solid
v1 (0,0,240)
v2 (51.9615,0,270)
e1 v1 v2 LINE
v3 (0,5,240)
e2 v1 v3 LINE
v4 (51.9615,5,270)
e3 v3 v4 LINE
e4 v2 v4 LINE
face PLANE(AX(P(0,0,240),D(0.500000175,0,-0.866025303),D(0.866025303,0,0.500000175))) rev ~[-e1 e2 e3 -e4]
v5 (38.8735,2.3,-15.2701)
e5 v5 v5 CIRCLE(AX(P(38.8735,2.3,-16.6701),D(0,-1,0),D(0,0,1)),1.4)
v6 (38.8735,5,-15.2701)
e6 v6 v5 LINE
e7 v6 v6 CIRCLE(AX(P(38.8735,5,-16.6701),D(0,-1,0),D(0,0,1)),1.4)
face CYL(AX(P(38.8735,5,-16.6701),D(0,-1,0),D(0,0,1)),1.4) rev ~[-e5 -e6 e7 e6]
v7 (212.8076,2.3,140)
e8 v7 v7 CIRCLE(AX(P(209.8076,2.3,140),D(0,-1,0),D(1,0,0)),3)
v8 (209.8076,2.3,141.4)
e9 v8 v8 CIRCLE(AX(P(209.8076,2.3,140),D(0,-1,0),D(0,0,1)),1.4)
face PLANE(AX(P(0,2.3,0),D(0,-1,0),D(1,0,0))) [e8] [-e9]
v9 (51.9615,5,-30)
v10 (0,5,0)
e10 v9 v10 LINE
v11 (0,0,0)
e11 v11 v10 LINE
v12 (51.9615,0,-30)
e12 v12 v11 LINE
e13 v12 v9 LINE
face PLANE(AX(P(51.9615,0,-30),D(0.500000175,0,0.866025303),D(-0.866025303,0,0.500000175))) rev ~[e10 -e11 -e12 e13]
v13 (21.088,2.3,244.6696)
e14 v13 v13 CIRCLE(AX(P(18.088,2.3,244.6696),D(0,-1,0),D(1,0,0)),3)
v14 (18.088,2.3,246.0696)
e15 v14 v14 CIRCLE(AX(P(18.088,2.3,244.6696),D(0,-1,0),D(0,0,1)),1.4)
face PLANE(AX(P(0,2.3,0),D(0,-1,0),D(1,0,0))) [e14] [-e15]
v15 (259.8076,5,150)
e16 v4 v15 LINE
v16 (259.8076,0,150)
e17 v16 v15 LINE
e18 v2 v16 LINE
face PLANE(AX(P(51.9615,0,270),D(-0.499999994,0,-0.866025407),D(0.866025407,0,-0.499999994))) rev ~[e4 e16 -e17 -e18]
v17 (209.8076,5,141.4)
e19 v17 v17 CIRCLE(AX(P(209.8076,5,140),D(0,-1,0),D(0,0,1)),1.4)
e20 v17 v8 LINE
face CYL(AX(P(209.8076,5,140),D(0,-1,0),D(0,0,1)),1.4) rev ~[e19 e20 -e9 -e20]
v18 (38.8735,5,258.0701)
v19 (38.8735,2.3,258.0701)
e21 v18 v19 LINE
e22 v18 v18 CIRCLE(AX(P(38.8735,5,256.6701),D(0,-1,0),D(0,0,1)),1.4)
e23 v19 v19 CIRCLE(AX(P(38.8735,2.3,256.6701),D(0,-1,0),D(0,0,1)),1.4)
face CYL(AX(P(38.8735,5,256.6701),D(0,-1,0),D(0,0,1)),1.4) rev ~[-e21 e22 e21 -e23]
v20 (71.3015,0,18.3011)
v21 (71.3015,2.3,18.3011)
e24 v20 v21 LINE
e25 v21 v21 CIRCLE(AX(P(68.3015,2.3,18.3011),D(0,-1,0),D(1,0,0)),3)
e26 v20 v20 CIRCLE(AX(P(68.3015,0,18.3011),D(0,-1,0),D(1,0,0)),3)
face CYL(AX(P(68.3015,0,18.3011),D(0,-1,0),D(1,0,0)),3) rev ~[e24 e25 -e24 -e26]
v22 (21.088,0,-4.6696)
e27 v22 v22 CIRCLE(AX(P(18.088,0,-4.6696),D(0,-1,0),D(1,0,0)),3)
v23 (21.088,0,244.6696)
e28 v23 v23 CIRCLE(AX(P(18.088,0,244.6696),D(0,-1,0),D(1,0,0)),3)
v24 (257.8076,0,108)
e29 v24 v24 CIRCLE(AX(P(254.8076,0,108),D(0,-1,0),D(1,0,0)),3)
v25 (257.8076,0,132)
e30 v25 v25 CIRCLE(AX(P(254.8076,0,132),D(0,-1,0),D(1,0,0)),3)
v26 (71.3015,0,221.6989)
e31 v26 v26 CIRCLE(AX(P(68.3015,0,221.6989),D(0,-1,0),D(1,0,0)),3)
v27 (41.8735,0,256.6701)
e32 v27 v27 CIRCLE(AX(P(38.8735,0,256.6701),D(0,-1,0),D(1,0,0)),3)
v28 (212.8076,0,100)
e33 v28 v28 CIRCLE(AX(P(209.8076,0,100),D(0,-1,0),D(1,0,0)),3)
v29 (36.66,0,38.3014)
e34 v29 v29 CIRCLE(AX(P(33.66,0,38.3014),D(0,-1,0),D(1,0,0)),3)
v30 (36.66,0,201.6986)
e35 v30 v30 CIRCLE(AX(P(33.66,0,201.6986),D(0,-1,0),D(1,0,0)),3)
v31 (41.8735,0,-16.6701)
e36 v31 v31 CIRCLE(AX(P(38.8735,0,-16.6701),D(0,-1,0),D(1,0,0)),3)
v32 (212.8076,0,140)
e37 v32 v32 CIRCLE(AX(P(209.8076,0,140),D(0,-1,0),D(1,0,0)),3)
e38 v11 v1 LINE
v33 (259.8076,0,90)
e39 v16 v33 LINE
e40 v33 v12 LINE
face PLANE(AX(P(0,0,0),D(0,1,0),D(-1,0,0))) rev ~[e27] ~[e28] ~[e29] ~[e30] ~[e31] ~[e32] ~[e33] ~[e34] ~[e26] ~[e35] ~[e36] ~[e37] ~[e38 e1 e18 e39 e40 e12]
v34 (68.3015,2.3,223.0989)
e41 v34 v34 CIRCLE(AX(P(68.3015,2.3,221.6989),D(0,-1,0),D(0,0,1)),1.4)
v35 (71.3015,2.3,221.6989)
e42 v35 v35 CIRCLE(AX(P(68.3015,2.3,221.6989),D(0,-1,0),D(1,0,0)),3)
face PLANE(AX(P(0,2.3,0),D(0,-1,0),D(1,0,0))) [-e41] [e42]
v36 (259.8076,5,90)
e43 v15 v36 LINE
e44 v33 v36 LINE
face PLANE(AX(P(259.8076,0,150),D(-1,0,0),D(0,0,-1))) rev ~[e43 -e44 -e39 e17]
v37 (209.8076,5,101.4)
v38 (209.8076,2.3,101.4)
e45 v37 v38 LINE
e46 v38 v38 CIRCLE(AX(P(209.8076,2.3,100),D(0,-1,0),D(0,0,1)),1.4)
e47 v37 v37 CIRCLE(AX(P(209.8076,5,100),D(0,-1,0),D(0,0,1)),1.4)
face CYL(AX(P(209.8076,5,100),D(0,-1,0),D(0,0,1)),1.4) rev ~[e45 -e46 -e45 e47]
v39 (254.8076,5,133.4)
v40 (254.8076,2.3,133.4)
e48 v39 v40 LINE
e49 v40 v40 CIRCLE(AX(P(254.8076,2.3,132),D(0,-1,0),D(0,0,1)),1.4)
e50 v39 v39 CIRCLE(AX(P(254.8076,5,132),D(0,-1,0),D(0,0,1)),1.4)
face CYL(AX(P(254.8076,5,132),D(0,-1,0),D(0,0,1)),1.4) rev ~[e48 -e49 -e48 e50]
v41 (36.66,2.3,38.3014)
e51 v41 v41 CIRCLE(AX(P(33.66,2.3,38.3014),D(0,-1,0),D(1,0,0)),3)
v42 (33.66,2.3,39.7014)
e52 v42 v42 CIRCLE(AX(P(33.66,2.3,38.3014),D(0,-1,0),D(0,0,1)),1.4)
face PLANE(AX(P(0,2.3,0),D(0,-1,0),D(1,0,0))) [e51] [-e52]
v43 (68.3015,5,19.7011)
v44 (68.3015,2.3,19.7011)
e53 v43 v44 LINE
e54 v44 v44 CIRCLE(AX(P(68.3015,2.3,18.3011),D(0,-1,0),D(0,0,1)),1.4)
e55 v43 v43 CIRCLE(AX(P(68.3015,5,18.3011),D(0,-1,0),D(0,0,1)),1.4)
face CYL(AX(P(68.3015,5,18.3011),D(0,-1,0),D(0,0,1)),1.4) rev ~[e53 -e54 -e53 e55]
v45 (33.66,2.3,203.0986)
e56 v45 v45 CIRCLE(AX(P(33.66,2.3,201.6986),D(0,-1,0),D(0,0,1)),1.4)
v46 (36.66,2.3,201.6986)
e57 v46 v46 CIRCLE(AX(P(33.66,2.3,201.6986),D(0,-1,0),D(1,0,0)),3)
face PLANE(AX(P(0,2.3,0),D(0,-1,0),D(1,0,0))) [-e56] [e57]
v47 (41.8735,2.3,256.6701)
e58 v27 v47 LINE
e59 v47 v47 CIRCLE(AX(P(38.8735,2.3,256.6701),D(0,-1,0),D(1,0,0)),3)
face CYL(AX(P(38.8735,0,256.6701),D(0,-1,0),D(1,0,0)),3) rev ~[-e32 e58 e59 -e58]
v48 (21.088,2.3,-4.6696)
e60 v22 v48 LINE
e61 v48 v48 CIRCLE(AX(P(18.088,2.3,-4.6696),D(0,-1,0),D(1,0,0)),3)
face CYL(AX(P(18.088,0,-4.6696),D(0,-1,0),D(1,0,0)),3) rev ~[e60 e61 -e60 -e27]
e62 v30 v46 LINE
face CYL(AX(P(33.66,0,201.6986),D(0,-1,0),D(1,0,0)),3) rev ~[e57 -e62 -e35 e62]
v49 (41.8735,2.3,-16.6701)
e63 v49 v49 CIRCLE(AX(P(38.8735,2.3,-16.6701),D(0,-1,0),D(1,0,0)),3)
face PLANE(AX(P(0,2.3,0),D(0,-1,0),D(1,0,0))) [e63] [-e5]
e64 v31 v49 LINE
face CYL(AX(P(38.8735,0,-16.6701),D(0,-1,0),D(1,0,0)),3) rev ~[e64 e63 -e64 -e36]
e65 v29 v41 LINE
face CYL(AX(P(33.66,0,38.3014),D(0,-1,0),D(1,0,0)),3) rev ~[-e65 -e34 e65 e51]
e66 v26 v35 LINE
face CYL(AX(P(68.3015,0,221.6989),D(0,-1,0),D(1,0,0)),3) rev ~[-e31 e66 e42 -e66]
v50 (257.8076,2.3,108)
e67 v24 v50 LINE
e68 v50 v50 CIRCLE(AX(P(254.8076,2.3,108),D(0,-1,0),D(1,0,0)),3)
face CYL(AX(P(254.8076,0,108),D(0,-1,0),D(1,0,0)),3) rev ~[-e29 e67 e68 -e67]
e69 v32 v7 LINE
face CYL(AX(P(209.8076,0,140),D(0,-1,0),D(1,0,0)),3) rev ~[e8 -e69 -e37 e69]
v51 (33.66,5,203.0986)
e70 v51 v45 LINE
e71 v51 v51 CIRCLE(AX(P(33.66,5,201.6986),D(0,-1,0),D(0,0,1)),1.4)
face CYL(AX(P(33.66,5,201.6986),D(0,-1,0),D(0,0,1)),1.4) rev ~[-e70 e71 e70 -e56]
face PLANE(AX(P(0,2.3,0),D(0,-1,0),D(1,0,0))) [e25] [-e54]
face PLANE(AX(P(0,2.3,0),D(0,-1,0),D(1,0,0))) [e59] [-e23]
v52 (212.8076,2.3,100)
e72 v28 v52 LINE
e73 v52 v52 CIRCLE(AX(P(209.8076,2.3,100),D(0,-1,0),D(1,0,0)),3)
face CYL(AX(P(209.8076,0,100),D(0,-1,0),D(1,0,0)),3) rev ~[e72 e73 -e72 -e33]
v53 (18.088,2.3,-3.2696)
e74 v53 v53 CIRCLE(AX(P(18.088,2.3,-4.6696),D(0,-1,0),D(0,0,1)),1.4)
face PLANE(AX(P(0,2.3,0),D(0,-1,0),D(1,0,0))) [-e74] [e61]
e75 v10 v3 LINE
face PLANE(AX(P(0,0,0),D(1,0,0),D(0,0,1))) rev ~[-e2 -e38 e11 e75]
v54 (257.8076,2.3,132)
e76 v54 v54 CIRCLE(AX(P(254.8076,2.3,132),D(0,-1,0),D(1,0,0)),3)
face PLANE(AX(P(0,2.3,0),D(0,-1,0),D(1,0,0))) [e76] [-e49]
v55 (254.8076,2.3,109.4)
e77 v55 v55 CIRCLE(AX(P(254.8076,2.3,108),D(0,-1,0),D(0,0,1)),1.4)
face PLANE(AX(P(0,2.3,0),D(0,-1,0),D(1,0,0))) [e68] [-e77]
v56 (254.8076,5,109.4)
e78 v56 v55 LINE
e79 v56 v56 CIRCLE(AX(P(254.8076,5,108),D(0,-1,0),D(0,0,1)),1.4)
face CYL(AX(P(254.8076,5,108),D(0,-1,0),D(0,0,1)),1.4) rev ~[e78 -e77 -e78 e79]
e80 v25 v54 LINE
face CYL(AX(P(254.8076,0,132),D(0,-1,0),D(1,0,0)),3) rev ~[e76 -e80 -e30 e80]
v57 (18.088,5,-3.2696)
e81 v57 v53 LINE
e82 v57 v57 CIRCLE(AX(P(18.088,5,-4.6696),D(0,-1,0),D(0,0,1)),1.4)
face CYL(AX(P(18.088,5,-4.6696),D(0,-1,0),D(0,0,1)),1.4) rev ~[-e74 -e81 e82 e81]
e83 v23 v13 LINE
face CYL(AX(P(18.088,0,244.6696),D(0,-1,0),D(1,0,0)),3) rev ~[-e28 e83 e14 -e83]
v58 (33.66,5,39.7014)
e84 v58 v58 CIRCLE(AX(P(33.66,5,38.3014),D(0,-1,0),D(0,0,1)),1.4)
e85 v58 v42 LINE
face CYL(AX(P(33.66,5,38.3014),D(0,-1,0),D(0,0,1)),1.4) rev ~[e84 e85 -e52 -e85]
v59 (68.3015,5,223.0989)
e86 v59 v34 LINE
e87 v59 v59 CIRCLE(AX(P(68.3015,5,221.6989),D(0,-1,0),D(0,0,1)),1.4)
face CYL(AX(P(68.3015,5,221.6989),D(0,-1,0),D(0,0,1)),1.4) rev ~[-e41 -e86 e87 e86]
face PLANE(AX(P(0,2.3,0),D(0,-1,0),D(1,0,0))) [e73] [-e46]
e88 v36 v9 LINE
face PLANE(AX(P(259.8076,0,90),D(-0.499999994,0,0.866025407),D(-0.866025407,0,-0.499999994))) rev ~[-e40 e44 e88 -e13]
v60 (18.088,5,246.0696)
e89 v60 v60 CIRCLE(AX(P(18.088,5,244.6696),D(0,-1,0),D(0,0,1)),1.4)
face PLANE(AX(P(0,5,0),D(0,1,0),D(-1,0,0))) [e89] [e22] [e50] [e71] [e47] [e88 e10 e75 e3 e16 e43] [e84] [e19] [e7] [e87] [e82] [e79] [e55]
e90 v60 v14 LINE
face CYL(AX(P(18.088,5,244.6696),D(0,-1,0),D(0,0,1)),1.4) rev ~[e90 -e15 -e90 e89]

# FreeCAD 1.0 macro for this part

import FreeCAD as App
import Part
import Sketcher

V = App.Vector
Q = App.Units.Quantity


def add_polygon(sketch, points):
    """Adds a closed chain of lines whose ends are joined by coincident constraints."""
    first, n = sketch.GeometryCount, len(points)
    for a, b in zip(points, points[1:] + points[:1]):
        sketch.addGeometry(Part.LineSegment(App.Vector(*a, 0), App.Vector(*b, 0)), False)
    for i in range(n):
        sketch.addConstraint(Sketcher.Constraint("Coincident", first + i, 2, first + (i + 1) % n, 1))

doc = App.newDocument("Part")
body = doc.addObject("PartDesign::Body", "Body")

# Sketch on XZ plane
sketch1 = body.newObject("Sketcher::SketchObject", "Sketch")
sketch1.AttachmentSupport = (doc.getObject("XZ_Plane"), [""])
sketch1.MapMode = "FlatFace"
add_polygon(sketch1, [(51.9615, 270), (259.8076, 150), (259.8076, 90), (51.9615, -30), (0, 0), (0, 240)])  # lines 0-5
sketch1.addConstraint(Sketcher.Constraint("Vertical", 1))
sketch1.addConstraint(Sketcher.Constraint("Vertical", 4))
sketch1.addConstraint(Sketcher.Constraint("Coincident", 3, 2, -1, 1))
sketch1.addConstraint(Sketcher.Constraint("Parallel", 0, 3))
sketch1.addConstraint(Sketcher.Constraint("Parallel", 2, 5))
sketch1.addConstraint(Sketcher.Constraint("Vertical", 2, 2, 5, 2))
sketch1.addConstraint(Sketcher.Constraint("Equal", 0, 2))
sketch1.addConstraint(Sketcher.Constraint("DistanceY", 1, 2, 1, 1, Q("60 mm")))
sketch1.addConstraint(Sketcher.Constraint("Distance", 3, Q("60 mm")))
sketch1.addConstraint(Sketcher.Constraint("DistanceY", 2, 2, 1, 2, Q("120 mm")))
sketch1.addConstraint(Sketcher.Constraint("DistanceY", 4, 1, 4, 2, Q("240 mm")))
pad1 = body.newObject("PartDesign::Pad", "Pad")
pad1.Profile = sketch1
pad1.Length = 5
pad1.Reversed = True

# Sketch on XZ plane
sketch2 = body.newObject("Sketcher::SketchObject", "Sketch001")
sketch2.AttachmentSupport = (doc.getObject("XZ_Plane"), [""])
sketch2.MapMode = "FlatFace"
sketch2.AttachmentOffset = App.Placement(V(0, 0, -5), App.Rotation())
sketch2.addGeometry(Part.Circle(V(209.8076, 100, 0), V(0, 0, 1), 1.4), False)
sketch2.addGeometry(Part.Circle(V(209.8076, 140, 0), V(0, 0, 1), 1.4), False)
sketch2.addGeometry(Part.Circle(V(254.8076, 108, 0), V(0, 0, 1), 1.4), False)
sketch2.addGeometry(Part.Circle(V(254.8076, 132, 0), V(0, 0, 1), 1.4), False)
sketch2.addConstraint(Sketcher.Constraint("Equal", 0, 1))
sketch2.addConstraint(Sketcher.Constraint("Equal", 1, 2))
sketch2.addConstraint(Sketcher.Constraint("Equal", 2, 3))
sketch2.addConstraint(Sketcher.Constraint("Vertical", 0, 3, 1, 3))
sketch2.addConstraint(Sketcher.Constraint("Vertical", 2, 3, 3, 3))
sketch2.addConstraint(Sketcher.Constraint("Diameter", 0, Q("2.8 mm")))
sketch2.addConstraint(Sketcher.Constraint("DistanceY", -1, 1, 0, 3, Q("100 mm")))
sketch2.addConstraint(Sketcher.Constraint("DistanceY", -1, 1, 1, 3, Q("140 mm")))
sketch2.addConstraint(Sketcher.Constraint("DistanceY", -1, 1, 2, 3, Q("108 mm")))
sketch2.addConstraint(Sketcher.Constraint("DistanceY", -1, 1, 3, 3, Q("132 mm")))
sketch2.addConstraint(Sketcher.Constraint("DistanceX", 0, 3, 2, 3, Q("45 mm")))
sketch2.addConstraint(Sketcher.Constraint("DistanceX", -1, 1, 0, 3, Q("209.8076 mm")))
doc.recompute()
hole = body.newObject("PartDesign::Hole", "Hole")
hole.Profile = sketch2
hole.ThreadType = "None"
hole.Diameter = 2.8
hole.DepthType = "ThroughAll"
hole.Reversed = True

# Sketch on XZ plane
sketch3 = body.newObject("Sketcher::SketchObject", "Sketch002")
sketch3.AttachmentSupport = (doc.getObject("XZ_Plane"), [""])
sketch3.MapMode = "FlatFace"
sketch3.AttachmentOffset = App.Placement(V(0, 0, -5), App.Rotation())
sketch3.addGeometry(Part.Circle(V(68.3015, 18.3011, 0), V(0, 0, 1), 1.4), False)
sketch3.addGeometry(Part.Circle(V(33.66, 38.3014, 0), V(0, 0, 1), 1.4), False)
sketch3.addGeometry(Part.Circle(V(18.088, -4.6696, 0), V(0, 0, 1), 1.4), False)
sketch3.addGeometry(Part.Circle(V(38.8735, -16.6701, 0), V(0, 0, 1), 1.4), False)
sketch3.addConstraint(Sketcher.Constraint("Equal", 0, 1))
sketch3.addConstraint(Sketcher.Constraint("Equal", 1, 2))
sketch3.addConstraint(Sketcher.Constraint("Equal", 2, 3))
sketch3.addConstraint(Sketcher.Constraint("Diameter", 0, Q("2.8 mm")))
sketch3.addConstraint(Sketcher.Constraint("DistanceX", -1, 1, 1, 3, Q("33.66 mm")))
sketch3.addConstraint(Sketcher.Constraint("DistanceY", 3, 3, -1, 1, Q("16.67 mm")))
sketch3.addConstraint(Sketcher.Constraint("DistanceY", -1, 1, 0, 3, Q("18.301 mm")))
sketch3.addConstraint(Sketcher.Constraint("DistanceX", -1, 1, 2, 3, Q("18.088 mm")))
sketch3.addConstraint(Sketcher.Constraint("DistanceY", 2, 3, 1, 3, Q("42.971 mm")))
sketch3.addConstraint(Sketcher.Constraint("DistanceX", 3, 3, 0, 3, Q("29.428 mm")))
sketch3.addConstraint(Sketcher.Constraint("DistanceX", -1, 1, 0, 3, Q("68.3015 mm")))
sketch3.addConstraint(Sketcher.Constraint("DistanceY", -1, 1, 1, 3, Q("38.3014 mm")))
doc.recompute()
hole2 = body.newObject("PartDesign::Hole", "Hole001")
hole2.Profile = sketch3
hole2.ThreadType = "None"
hole2.Diameter = 2.8
hole2.DepthType = "ThroughAll"
hole2.Reversed = True

# Sketch on XZ plane
sketch4 = body.newObject("Sketcher::SketchObject", "Sketch003")
sketch4.AttachmentSupport = (doc.getObject("XZ_Plane"), [""])
sketch4.MapMode = "FlatFace"
sketch4.AttachmentOffset = App.Placement(V(0, 0, -5), App.Rotation())
sketch4.addGeometry(Part.Circle(V(68.3015, 221.6989, 0), V(0, 0, 1), 1.4), False)
sketch4.addGeometry(Part.Circle(V(33.66, 201.6986, 0), V(0, 0, 1), 1.4), False)
sketch4.addGeometry(Part.Circle(V(18.088, 244.6696, 0), V(0, 0, 1), 1.4), False)
sketch4.addGeometry(Part.Circle(V(38.8735, 256.6701, 0), V(0, 0, 1), 1.4), False)
sketch4.addConstraint(Sketcher.Constraint("Equal", 0, 1))
sketch4.addConstraint(Sketcher.Constraint("Equal", 1, 2))
sketch4.addConstraint(Sketcher.Constraint("Equal", 2, 3))
sketch4.addConstraint(Sketcher.Constraint("Diameter", 0, Q("2.8 mm")))
sketch4.addConstraint(Sketcher.Constraint("DistanceX", -1, 1, 1, 3, Q("33.66 mm")))
sketch4.addConstraint(Sketcher.Constraint("DistanceY", -1, 1, 3, 3, Q("256.67 mm")))
sketch4.addConstraint(Sketcher.Constraint("DistanceY", -1, 1, 0, 3, Q("221.699 mm")))
sketch4.addConstraint(Sketcher.Constraint("DistanceX", -1, 1, 2, 3, Q("18.088 mm")))
sketch4.addConstraint(Sketcher.Constraint("DistanceY", 1, 3, 2, 3, Q("42.971 mm")))
sketch4.addConstraint(Sketcher.Constraint("DistanceX", 3, 3, 0, 3, Q("29.428 mm")))
sketch4.addConstraint(Sketcher.Constraint("DistanceX", -1, 1, 0, 3, Q("68.3015 mm")))
sketch4.addConstraint(Sketcher.Constraint("DistanceY", -1, 1, 1, 3, Q("201.6986 mm")))
doc.recompute()
hole3 = body.newObject("PartDesign::Hole", "Hole002")
hole3.Profile = sketch4
hole3.ThreadType = "None"
hole3.Diameter = 2.8
hole3.DepthType = "ThroughAll"
hole3.Reversed = True

# Sketch on XZ plane
sketch5 = body.newObject("Sketcher::SketchObject", "Sketch004")
sketch5.AttachmentSupport = (doc.getObject("XZ_Plane"), [""])
sketch5.MapMode = "FlatFace"
sketch5.addGeometry(Part.Circle(V(254.8076, 108, 0), V(0, 0, 1), 3), False)
sketch5.addGeometry(Part.Circle(V(254.8076, 108, 0), V(0, 0, 1), 1.4), False)
sketch5.addGeometry(Part.Circle(V(254.8076, 132, 0), V(0, 0, 1), 3), False)
sketch5.addGeometry(Part.Circle(V(254.8076, 132, 0), V(0, 0, 1), 1.4), False)
sketch5.addGeometry(Part.Circle(V(209.8076, 100, 0), V(0, 0, 1), 3), False)
sketch5.addGeometry(Part.Circle(V(209.8076, 100, 0), V(0, 0, 1), 1.4), False)
sketch5.addGeometry(Part.Circle(V(209.8076, 140, 0), V(0, 0, 1), 3), False)
sketch5.addGeometry(Part.Circle(V(209.8076, 140, 0), V(0, 0, 1), 1.4), False)
sketch5.addGeometry(Part.Circle(V(68.3015, 221.6989, 0), V(0, 0, 1), 3), False)
sketch5.addGeometry(Part.Circle(V(68.3015, 221.6989, 0), V(0, 0, 1), 1.4), False)
sketch5.addGeometry(Part.Circle(V(38.8735, 256.6701, 0), V(0, 0, 1), 3), False)
sketch5.addGeometry(Part.Circle(V(38.8735, 256.6701, 0), V(0, 0, 1), 1.4), False)
sketch5.addGeometry(Part.Circle(V(18.088, 244.6696, 0), V(0, 0, 1), 3), False)
sketch5.addGeometry(Part.Circle(V(18.088, 244.6696, 0), V(0, 0, 1), 1.4), False)
sketch5.addGeometry(Part.Circle(V(33.66, 201.6986, 0), V(0, 0, 1), 3), False)
sketch5.addGeometry(Part.Circle(V(33.66, 201.6986, 0), V(0, 0, 1), 1.4), False)
sketch5.addGeometry(Part.Circle(V(33.66, 38.3014, 0), V(0, 0, 1), 3), False)
sketch5.addGeometry(Part.Circle(V(33.66, 38.3014, 0), V(0, 0, 1), 1.4), False)
sketch5.addGeometry(Part.Circle(V(68.3015, 18.3011, 0), V(0, 0, 1), 3), False)
sketch5.addGeometry(Part.Circle(V(68.3015, 18.3011, 0), V(0, 0, 1), 1.4), False)
sketch5.addGeometry(Part.Circle(V(38.8735, -16.6701, 0), V(0, 0, 1), 3), False)
sketch5.addGeometry(Part.Circle(V(38.8735, -16.6701, 0), V(0, 0, 1), 1.4), False)
sketch5.addGeometry(Part.Circle(V(18.088, -4.6696, 0), V(0, 0, 1), 3), False)
sketch5.addGeometry(Part.Circle(V(18.088, -4.6696, 0), V(0, 0, 1), 1.4), False)
sketch5.addConstraint(Sketcher.Constraint("Coincident", 1, 3, 0, 3))
sketch5.addConstraint(Sketcher.Constraint("Coincident", 3, 3, 2, 3))
sketch5.addConstraint(Sketcher.Constraint("Coincident", 5, 3, 4, 3))
sketch5.addConstraint(Sketcher.Constraint("Coincident", 7, 3, 6, 3))
sketch5.addConstraint(Sketcher.Constraint("Coincident", 9, 3, 8, 3))
sketch5.addConstraint(Sketcher.Constraint("Coincident", 11, 3, 10, 3))
sketch5.addConstraint(Sketcher.Constraint("Coincident", 13, 3, 12, 3))
sketch5.addConstraint(Sketcher.Constraint("Coincident", 15, 3, 14, 3))
sketch5.addConstraint(Sketcher.Constraint("Coincident", 17, 3, 16, 3))
sketch5.addConstraint(Sketcher.Constraint("Coincident", 19, 3, 18, 3))
sketch5.addConstraint(Sketcher.Constraint("Coincident", 21, 3, 20, 3))
sketch5.addConstraint(Sketcher.Constraint("Coincident", 23, 3, 22, 3))
sketch5.addConstraint(Sketcher.Constraint("Equal", 0, 2))
sketch5.addConstraint(Sketcher.Constraint("Equal", 1, 3))
sketch5.addConstraint(Sketcher.Constraint("Equal", 2, 4))
sketch5.addConstraint(Sketcher.Constraint("Equal", 3, 5))
sketch5.addConstraint(Sketcher.Constraint("Equal", 4, 6))
sketch5.addConstraint(Sketcher.Constraint("Equal", 5, 7))
sketch5.addConstraint(Sketcher.Constraint("Equal", 6, 8))
sketch5.addConstraint(Sketcher.Constraint("Equal", 7, 9))
sketch5.addConstraint(Sketcher.Constraint("Equal", 8, 10))
sketch5.addConstraint(Sketcher.Constraint("Equal", 9, 11))
sketch5.addConstraint(Sketcher.Constraint("Equal", 10, 12))
sketch5.addConstraint(Sketcher.Constraint("Equal", 11, 13))
sketch5.addConstraint(Sketcher.Constraint("Equal", 12, 14))
sketch5.addConstraint(Sketcher.Constraint("Equal", 13, 15))
sketch5.addConstraint(Sketcher.Constraint("Equal", 14, 16))
sketch5.addConstraint(Sketcher.Constraint("Equal", 15, 17))
sketch5.addConstraint(Sketcher.Constraint("Equal", 16, 18))
sketch5.addConstraint(Sketcher.Constraint("Equal", 17, 19))
sketch5.addConstraint(Sketcher.Constraint("Equal", 18, 20))
sketch5.addConstraint(Sketcher.Constraint("Equal", 19, 21))
sketch5.addConstraint(Sketcher.Constraint("Equal", 20, 22))
sketch5.addConstraint(Sketcher.Constraint("Equal", 21, 23))
sketch5.addConstraint(Sketcher.Constraint("Vertical", 1, 3, 2, 3))
sketch5.addConstraint(Sketcher.Constraint("Vertical", 5, 3, 6, 3))
sketch5.addConstraint(Sketcher.Constraint("Vertical", 15, 3, 16, 3))
sketch5.addConstraint(Sketcher.Constraint("Vertical", 9, 3, 18, 3))
sketch5.addConstraint(Sketcher.Constraint("Vertical", 11, 3, 20, 3))
sketch5.addConstraint(Sketcher.Constraint("Vertical", 13, 3, 22, 3))
sketch5.addConstraint(Sketcher.Constraint("Diameter", 0, Q("6 mm")))
sketch5.addConstraint(Sketcher.Constraint("Diameter", 1, Q("2.8 mm")))
sketch5.addConstraint(Sketcher.Constraint("DistanceY", -1, 1, 0, 3, Q("108 mm")))
sketch5.addConstraint(Sketcher.Constraint("DistanceY", -1, 1, 2, 3, Q("132 mm")))
sketch5.addConstraint(Sketcher.Constraint("DistanceY", -1, 1, 4, 3, Q("100 mm")))
sketch5.addConstraint(Sketcher.Constraint("DistanceY", -1, 1, 6, 3, Q("140 mm")))
sketch5.addConstraint(Sketcher.Constraint("DistanceX", 4, 3, 0, 3, Q("45 mm")))
sketch5.addConstraint(Sketcher.Constraint("DistanceY", -1, 1, 10, 3, Q("256.67 mm")))
sketch5.addConstraint(Sketcher.Constraint("DistanceX", -1, 1, 14, 3, Q("33.66 mm")))
sketch5.addConstraint(Sketcher.Constraint("DistanceY", 20, 3, -1, 1, Q("16.67 mm")))
sketch5.addConstraint(Sketcher.Constraint("DistanceY", -1, 1, 8, 3, Q("221.699 mm")))
sketch5.addConstraint(Sketcher.Constraint("DistanceX", -1, 1, 12, 3, Q("18.088 mm")))
sketch5.addConstraint(Sketcher.Constraint("DistanceY", -1, 1, 18, 3, Q("18.301 mm")))
sketch5.addConstraint(Sketcher.Constraint("DistanceX", 8, 3, 6, 3, Q("141.506 mm")))
sketch5.addConstraint(Sketcher.Constraint("DistanceX", 10, 3, 8, 3, Q("29.428 mm")))
sketch5.addConstraint(Sketcher.Constraint("DistanceY", 14, 3, 12, 3, Q("42.971 mm")))
sketch5.addConstraint(Sketcher.Constraint("DistanceY", 22, 3, 16, 3, Q("42.971 mm")))
sketch5.addConstraint(Sketcher.Constraint("DistanceX", -1, 1, 0, 3, Q("254.8076 mm")))
sketch5.addConstraint(Sketcher.Constraint("DistanceY", -1, 1, 12, 3, Q("244.6696 mm")))
sketch5.addConstraint(Sketcher.Constraint("DistanceY", -1, 1, 16, 3, Q("38.3014 mm")))
pocket1 = body.newObject("PartDesign::Pocket", "Pocket")
pocket1.Profile = sketch5
pocket1.Length = 2.3

doc.recompute()
